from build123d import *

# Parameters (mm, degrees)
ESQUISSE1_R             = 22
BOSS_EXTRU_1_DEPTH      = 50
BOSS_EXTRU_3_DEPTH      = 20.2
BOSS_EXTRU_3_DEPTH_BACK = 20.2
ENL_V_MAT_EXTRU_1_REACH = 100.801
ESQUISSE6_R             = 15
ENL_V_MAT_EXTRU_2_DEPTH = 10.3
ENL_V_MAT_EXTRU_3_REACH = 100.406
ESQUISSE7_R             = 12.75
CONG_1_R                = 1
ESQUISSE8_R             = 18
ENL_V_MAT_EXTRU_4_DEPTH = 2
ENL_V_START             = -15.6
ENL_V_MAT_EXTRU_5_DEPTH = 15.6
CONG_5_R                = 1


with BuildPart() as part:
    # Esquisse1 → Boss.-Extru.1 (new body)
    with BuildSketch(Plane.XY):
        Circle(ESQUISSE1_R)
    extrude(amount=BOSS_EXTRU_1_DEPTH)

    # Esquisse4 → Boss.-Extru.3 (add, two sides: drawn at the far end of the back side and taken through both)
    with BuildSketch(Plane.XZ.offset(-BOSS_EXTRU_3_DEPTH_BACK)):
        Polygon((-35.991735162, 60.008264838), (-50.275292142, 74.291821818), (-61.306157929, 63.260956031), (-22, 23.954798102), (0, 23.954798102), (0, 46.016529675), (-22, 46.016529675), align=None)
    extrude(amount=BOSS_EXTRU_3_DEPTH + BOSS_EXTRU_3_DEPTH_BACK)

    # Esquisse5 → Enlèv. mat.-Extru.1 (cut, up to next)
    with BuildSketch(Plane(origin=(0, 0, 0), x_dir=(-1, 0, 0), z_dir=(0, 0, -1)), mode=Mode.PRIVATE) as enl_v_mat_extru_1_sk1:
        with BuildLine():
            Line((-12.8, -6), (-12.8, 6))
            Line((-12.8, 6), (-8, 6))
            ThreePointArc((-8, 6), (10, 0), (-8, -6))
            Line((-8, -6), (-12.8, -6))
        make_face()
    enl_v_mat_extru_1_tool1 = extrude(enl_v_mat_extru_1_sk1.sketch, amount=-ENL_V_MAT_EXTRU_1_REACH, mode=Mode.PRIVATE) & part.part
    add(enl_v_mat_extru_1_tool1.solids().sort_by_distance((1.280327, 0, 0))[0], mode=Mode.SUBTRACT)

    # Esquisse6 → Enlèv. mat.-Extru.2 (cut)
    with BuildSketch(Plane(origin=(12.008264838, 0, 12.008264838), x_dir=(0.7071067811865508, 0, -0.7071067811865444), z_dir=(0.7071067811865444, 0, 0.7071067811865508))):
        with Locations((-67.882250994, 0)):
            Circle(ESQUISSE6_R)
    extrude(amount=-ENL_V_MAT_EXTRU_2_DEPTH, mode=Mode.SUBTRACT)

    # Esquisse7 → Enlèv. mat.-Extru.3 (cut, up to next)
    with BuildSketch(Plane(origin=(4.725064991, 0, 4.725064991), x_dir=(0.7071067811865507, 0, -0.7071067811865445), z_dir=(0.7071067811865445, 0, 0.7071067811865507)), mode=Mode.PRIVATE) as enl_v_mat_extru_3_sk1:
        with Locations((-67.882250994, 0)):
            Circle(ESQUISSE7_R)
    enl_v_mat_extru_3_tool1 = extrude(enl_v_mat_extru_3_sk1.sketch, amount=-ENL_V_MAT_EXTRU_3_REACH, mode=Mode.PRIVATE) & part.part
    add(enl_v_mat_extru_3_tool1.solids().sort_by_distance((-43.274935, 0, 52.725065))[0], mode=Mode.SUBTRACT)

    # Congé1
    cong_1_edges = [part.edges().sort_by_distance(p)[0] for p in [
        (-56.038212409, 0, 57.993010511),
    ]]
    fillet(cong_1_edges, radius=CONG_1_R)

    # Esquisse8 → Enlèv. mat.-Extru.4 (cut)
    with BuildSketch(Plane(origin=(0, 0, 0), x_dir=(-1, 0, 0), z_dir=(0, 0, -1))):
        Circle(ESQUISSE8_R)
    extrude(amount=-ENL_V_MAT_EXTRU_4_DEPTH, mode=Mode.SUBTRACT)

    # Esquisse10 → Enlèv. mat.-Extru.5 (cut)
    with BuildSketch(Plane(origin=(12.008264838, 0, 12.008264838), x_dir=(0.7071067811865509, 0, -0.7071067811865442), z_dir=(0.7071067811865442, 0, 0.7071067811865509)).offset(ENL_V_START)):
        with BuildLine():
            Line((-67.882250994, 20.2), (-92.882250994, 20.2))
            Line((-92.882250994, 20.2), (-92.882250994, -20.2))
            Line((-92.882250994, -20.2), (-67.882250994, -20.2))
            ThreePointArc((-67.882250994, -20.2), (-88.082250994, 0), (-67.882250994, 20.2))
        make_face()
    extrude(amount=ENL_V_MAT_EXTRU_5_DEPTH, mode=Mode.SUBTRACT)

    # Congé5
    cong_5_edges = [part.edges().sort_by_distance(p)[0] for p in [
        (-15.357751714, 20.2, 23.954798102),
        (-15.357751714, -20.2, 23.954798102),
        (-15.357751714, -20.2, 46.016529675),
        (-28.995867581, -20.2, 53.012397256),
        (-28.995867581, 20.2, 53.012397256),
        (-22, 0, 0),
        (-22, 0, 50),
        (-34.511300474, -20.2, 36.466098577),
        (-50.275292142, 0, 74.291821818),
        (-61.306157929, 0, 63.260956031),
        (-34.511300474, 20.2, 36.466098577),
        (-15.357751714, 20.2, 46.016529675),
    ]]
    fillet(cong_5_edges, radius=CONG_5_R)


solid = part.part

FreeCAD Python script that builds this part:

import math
import FreeCAD as App
import Part
import Sketcher
from FreeCAD import Vector
Q = App.Units.Quantity


def edges_at(feature, points):
    """Names of the edges that pass closest to the given points."""
    edges = feature.Shape.Edges
    near = lambda p: min(range(len(edges)), key=lambda i: edges[i].distToShape(Part.Vertex(*p))[0])
    return sorted({f"Edge{near(p) + 1}" for p in points})


def add_polygon(sketch, points):
    """Adds a closed chain of lines whose ends are joined by coincident constraints."""
    first, n = sketch.GeometryCount, len(points)
    for a, b in zip(points, points[1:] + points[:1]):
        sketch.addGeometry(Part.LineSegment(App.Vector(*a, 0), App.Vector(*b, 0)), False)
    for i in range(n):
        sketch.addConstraint(Sketcher.Constraint("Coincident", first + i, 2, first + (i + 1) % n, 1))

doc = App.newDocument("Part")
params = doc.addObject("Spreadsheet::Sheet", "Params")
for row, (alias, value) in enumerate([
    ("sketch1_diameter", "44 mm"),
    ("pad1_length", "50 mm"),
    ("sketch2_width", "22 mm"),
    ("sketch2_length", "20.2 mm"),
    ("sketch2_length2", "15.6 mm"),
    ("pad2_length", "20.2 mm"),
    ("pad2_length2", "20.2 mm"),
    ("sketch3_radius", "10 mm"),
    ("sketch3_height", "12 mm"),
    ("sketch3_width", "4.8 mm"),
    ("sketch4_diameter", "30 mm"),
    ("pocket2_length", "10.3 mm"),
    ("sketch5_diameter", "25.5 mm"),
    ("fillet_radius", "1 mm"),
    ("sketch6_diameter", "36 mm"),
    ("pocket4_length", "2 mm"),
    ("sketch7_radius", "20.2 mm"),
    ("sketch7_width", "25 mm"),
    ("pocket5_length", "15.6 mm"),
    ("fillet2_radius", "1 mm"),
], start=1):
    params.set(f"A{row}", alias)
    params.set(f"B{row}", "=" + value)
    params.setAlias(f"B{row}", alias)

body = doc.addObject("PartDesign::Body", "Body")

# Sketch on XY plane
sketch1 = doc.addObject("Sketcher::SketchObject", "Sketch")
body.addObject(sketch1)
sketch1.AttachmentSupport = (doc.XY_Plane, [""])
sketch1.MapMode = "FlatFace"
sketch1.addGeometry(Part.Circle(Vector(0, 0, 0), Vector(0, 0, 1), 22), False)
sketch1.addConstraint(Sketcher.Constraint("Coincident", 0, 3, -1, 1))
sketch1.addConstraint(Sketcher.Constraint("Diameter", 0, 44.0))
sketch1.setExpression("Constraints[1]", "Params.sketch1_diameter")
pad1 = doc.addObject("PartDesign::Pad", "Pad")
body.addObject(pad1)
pad1.Profile = sketch1
pad1.setExpression("Length", "Params.pad1_length")

# Sketch on XZ plane
sketch2 = doc.addObject("Sketcher::SketchObject", "Sketch001")
body.addObject(sketch2)
sketch2.AttachmentSupport = (doc.XZ_Plane, [""])
sketch2.MapMode = "FlatFace"
add_polygon(sketch2, [(-35.991735, 60.008265), (-50.275292, 74.291822), (-61.306158, 63.260956), (-22, 23.954798), (0, 23.954798), (0, 46.01653), (-22, 46.01653)])  # lines 0-6
sketch2.addConstraint(Sketcher.Constraint("Horizontal", 3))
sketch2.addConstraint(Sketcher.Constraint("Vertical", 4))
sketch2.addConstraint(Sketcher.Constraint("Horizontal", 5))
sketch2.addConstraint(Sketcher.Constraint("PointOnObject", 3, 2, -2))
sketch2.addConstraint(Sketcher.Constraint("Perpendicular", 0, 1))
sketch2.addConstraint(Sketcher.Constraint("Perpendicular", 1, 2))
sketch2.addConstraint(Sketcher.Constraint("Parallel", 2, 6))
sketch2.addConstraint(Sketcher.Constraint("Vertical", 2, 2, 5, 2))
sketch2.addConstraint(Sketcher.Constraint("DistanceX", 3, 1, 3, 2, 22.0))
sketch2.addConstraint(Sketcher.Constraint("Angle", 0, Q("135 deg")))
sketch2.addConstraint(Sketcher.Constraint("Distance", 0, 20.2))
sketch2.addConstraint(Sketcher.Constraint("Distance", 1, 15.6))
sketch2.addConstraint(Sketcher.Constraint("Distance", 2, 55.587302))
sketch2.addConstraint(Sketcher.Constraint("DistanceY", -1, 1, 2, 2, 23.954798))
sketch2.setExpression("Constraints[15]", "Params.sketch2_width")
sketch2.setExpression("Constraints[17]", "Params.sketch2_length")
sketch2.setExpression("Constraints[18]", "Params.sketch2_length2")
pad2 = doc.addObject("PartDesign::Pad", "Pad001")
body.addObject(pad2)
pad2.Profile = sketch2
pad2.Type = "TwoLengths"
pad2.setExpression("Length", "Params.pad2_length")
pad2.setExpression("Length2", "Params.pad2_length2")

# Sketch on XY plane
sketch3 = doc.addObject("Sketcher::SketchObject", "Sketch002")
body.addObject(sketch3)
sketch3.AttachmentSupport = (doc.XY_Plane, [""])
sketch3.MapMode = "FlatFace"
sketch3.addGeometry(Part.LineSegment(Vector(12.8, 6, 0), Vector(12.8, -6, 0)), False)
sketch3.addGeometry(Part.LineSegment(Vector(12.8, -6, 0), Vector(8, -6, 0)), False)
sketch3.addGeometry(Part.ArcOfCircle(Part.Circle(Vector(0, 0, 0), Vector(0, 0, 1), 10), math.radians(36.869898), math.radians(323.130102)), False)
sketch3.addGeometry(Part.LineSegment(Vector(8, 6, 0), Vector(12.8, 6, 0)), False)
sketch3.addConstraint(Sketcher.Constraint("Coincident", 0, 2, 1, 1))
sketch3.addConstraint(Sketcher.Constraint("Coincident", 1, 2, 2, 2))
sketch3.addConstraint(Sketcher.Constraint("Coincident", 2, 1, 3, 1))
sketch3.addConstraint(Sketcher.Constraint("Coincident", 3, 2, 0, 1))
sketch3.addConstraint(Sketcher.Constraint("Vertical", 0))
sketch3.addConstraint(Sketcher.Constraint("Horizontal", 1))
sketch3.addConstraint(Sketcher.Constraint("Horizontal", 3))
sketch3.addConstraint(Sketcher.Constraint("Coincident", 2, 3, -1, 1))
sketch3.addConstraint(Sketcher.Constraint("Vertical", 1, 2, 2, 1))
sketch3.addConstraint(Sketcher.Constraint("Radius", 2, 10.0))
sketch3.addConstraint(Sketcher.Constraint("DistanceY", 0, 2, 0, 1, 12.0))
sketch3.addConstraint(Sketcher.Constraint("DistanceX", 1, 2, 1, 1, 4.8))
sketch3.setExpression("Constraints[9]", "Params.sketch3_radius")
sketch3.setExpression("Constraints[10]", "Params.sketch3_height")
sketch3.setExpression("Constraints[11]", "Params.sketch3_width")
pocket1 = doc.addObject("PartDesign::Pocket", "Pocket")
body.addObject(pocket1)
pocket1.Profile = sketch3
pocket1.Type = "UpToFirst"
pocket1.Reversed = True

# Sketch on an angled plane
sketch4 = doc.addObject("Sketcher::SketchObject", "Sketch003")
body.addObject(sketch4)
sketch4.Placement = App.Placement(Vector(12.008265, 0, 12.008265), App.Rotation(Vector(0.707106781, 0, -0.707106781), Vector(0, 0.999999999, 0), Vector(0.707106781, 0, 0.707106781), "ZXY"))
sketch4.addGeometry(Part.Circle(Vector(-67.882251, 0, 0), Vector(0, 0, 1), 15), False)
sketch4.addConstraint(Sketcher.Constraint("PointOnObject", 0, 3, -1))
sketch4.addConstraint(Sketcher.Constraint("Diameter", 0, 30.0))
sketch4.addConstraint(Sketcher.Constraint("DistanceX", 0, 3, -1, 1, 67.882251))
sketch4.setExpression("Constraints[1]", "Params.sketch4_diameter")
pocket2 = doc.addObject("PartDesign::Pocket", "Pocket001")
body.addObject(pocket2)
pocket2.Profile = sketch4
pocket2.setExpression("Length", "Params.pocket2_length")

# Sketch on an angled plane
sketch5 = doc.addObject("Sketcher::SketchObject", "Sketch004")
body.addObject(sketch5)
sketch5.Placement = App.Placement(Vector(4.725065, 0, 4.725065), App.Rotation(Vector(0.707106781, 0, -0.707106781), Vector(0, 0.999999999, 0), Vector(0.707106781, 0, 0.707106781), "ZXY"))
sketch5.addGeometry(Part.Circle(Vector(-67.882251, 0, 0), Vector(0, 0, 1), 12.75), False)
sketch5.addConstraint(Sketcher.Constraint("PointOnObject", 0, 3, -1))
sketch5.addConstraint(Sketcher.Constraint("Diameter", 0, 25.5))
sketch5.addConstraint(Sketcher.Constraint("DistanceX", 0, 3, -1, 1, 67.882251))
sketch5.setExpression("Constraints[1]", "Params.sketch5_diameter")
pocket3 = doc.addObject("PartDesign::Pocket", "Pocket002")
body.addObject(pocket3)
pocket3.Profile = sketch5
pocket3.Type = "UpToFirst"
doc.recompute()

fillet = doc.addObject("PartDesign::Fillet", "Fillet")
body.addObject(fillet)
fillet.Base = (pocket3, edges_at(pocket3, [(-56.038, 0, 57.993)]))
fillet.setExpression("Radius", "Params.fillet_radius")

# Sketch on XY plane
sketch6 = doc.addObject("Sketcher::SketchObject", "Sketch005")
body.addObject(sketch6)
sketch6.AttachmentSupport = (doc.XY_Plane, [""])
sketch6.MapMode = "FlatFace"
sketch6.addGeometry(Part.Circle(Vector(0, 0, 0), Vector(0, 0, 1), 18), False)
sketch6.addConstraint(Sketcher.Constraint("Coincident", 0, 3, -1, 1))
sketch6.addConstraint(Sketcher.Constraint("Diameter", 0, 36.0))
sketch6.setExpression("Constraints[1]", "Params.sketch6_diameter")
pocket4 = doc.addObject("PartDesign::Pocket", "Pocket003")
body.addObject(pocket4)
pocket4.Profile = sketch6
pocket4.setExpression("Length", "Params.pocket4_length")
pocket4.Reversed = True

# Sketch on an angled plane
sketch7 = doc.addObject("Sketcher::SketchObject", "Sketch006")
body.addObject(sketch7)
sketch7.Placement = App.Placement(Vector(0.977399, 0, 0.977399), App.Rotation(Vector(0.707106781, 0, -0.707106781), Vector(0, 0.999999999, 0), Vector(0.707106781, 0, 0.707106781), "ZXY"))
sketch7.addGeometry(Part.LineSegment(Vector(-67.882251, 20.2, 0), Vector(-92.882251, 20.2, 0)), False)
sketch7.addGeometry(Part.LineSegment(Vector(-92.882251, 20.2, 0), Vector(-92.882251, -20.2, 0)), False)
sketch7.addGeometry(Part.LineSegment(Vector(-92.882251, -20.2, 0), Vector(-67.882251, -20.2, 0)), False)
sketch7.addGeometry(Part.ArcOfCircle(Part.Circle(Vector(-67.882251, 0, 0), Vector(0, 0, 1), 20.2), math.radians(90), math.radians(270)), False)
sketch7.addConstraint(Sketcher.Constraint("Coincident", 0, 2, 1, 1))
sketch7.addConstraint(Sketcher.Constraint("Coincident", 1, 2, 2, 1))
sketch7.addConstraint(Sketcher.Constraint("Tangent", 2, 2, 3, 2))
sketch7.addConstraint(Sketcher.Constraint("Tangent", 3, 1, 0, 1))
sketch7.addConstraint(Sketcher.Constraint("Horizontal", 0))
sketch7.addConstraint(Sketcher.Constraint("Vertical", 1))
sketch7.addConstraint(Sketcher.Constraint("Horizontal", 2))
sketch7.addConstraint(Sketcher.Constraint("PointOnObject", 3, 3, -1))
sketch7.addConstraint(Sketcher.Constraint("Radius", 3, 20.2))
sketch7.addConstraint(Sketcher.Constraint("DistanceX", 0, 2, 0, 1, 25.0))
sketch7.addConstraint(Sketcher.Constraint("DistanceX", 3, 3, -1, 1, 67.882251))
sketch7.setExpression("Constraints[8]", "Params.sketch7_radius")
sketch7.setExpression("Constraints[9]", "Params.sketch7_width")
pocket5 = doc.addObject("PartDesign::Pocket", "Pocket004")
body.addObject(pocket5)
pocket5.Profile = sketch7
pocket5.setExpression("Length", "Params.pocket5_length")
pocket5.Reversed = True
doc.recompute()

fillet2 = doc.addObject("PartDesign::Fillet", "Fillet001")
body.addObject(fillet2)
fillet2.Base = (pocket5, edges_at(pocket5, [
    (-15.358, 20.2, 23.955),
    (-15.358, -20.2, 23.955),
    (-15.358, -20.2, 46.017),
    (-28.996, -20.2, 53.012),
    (-28.996, 20.2, 53.012),
    (-22, 0, 0),
    (-22, 0, 50),
    (-34.511, -20.2, 36.466),
    (-50.275, 0, 74.292),
    (-61.306, 0, 63.261),
    (-34.511, 20.2, 36.466),
    (-15.358, 20.2, 46.017),
]))
fillet2.setExpression("Radius", "Params.fillet2_radius")

doc.recompute()
